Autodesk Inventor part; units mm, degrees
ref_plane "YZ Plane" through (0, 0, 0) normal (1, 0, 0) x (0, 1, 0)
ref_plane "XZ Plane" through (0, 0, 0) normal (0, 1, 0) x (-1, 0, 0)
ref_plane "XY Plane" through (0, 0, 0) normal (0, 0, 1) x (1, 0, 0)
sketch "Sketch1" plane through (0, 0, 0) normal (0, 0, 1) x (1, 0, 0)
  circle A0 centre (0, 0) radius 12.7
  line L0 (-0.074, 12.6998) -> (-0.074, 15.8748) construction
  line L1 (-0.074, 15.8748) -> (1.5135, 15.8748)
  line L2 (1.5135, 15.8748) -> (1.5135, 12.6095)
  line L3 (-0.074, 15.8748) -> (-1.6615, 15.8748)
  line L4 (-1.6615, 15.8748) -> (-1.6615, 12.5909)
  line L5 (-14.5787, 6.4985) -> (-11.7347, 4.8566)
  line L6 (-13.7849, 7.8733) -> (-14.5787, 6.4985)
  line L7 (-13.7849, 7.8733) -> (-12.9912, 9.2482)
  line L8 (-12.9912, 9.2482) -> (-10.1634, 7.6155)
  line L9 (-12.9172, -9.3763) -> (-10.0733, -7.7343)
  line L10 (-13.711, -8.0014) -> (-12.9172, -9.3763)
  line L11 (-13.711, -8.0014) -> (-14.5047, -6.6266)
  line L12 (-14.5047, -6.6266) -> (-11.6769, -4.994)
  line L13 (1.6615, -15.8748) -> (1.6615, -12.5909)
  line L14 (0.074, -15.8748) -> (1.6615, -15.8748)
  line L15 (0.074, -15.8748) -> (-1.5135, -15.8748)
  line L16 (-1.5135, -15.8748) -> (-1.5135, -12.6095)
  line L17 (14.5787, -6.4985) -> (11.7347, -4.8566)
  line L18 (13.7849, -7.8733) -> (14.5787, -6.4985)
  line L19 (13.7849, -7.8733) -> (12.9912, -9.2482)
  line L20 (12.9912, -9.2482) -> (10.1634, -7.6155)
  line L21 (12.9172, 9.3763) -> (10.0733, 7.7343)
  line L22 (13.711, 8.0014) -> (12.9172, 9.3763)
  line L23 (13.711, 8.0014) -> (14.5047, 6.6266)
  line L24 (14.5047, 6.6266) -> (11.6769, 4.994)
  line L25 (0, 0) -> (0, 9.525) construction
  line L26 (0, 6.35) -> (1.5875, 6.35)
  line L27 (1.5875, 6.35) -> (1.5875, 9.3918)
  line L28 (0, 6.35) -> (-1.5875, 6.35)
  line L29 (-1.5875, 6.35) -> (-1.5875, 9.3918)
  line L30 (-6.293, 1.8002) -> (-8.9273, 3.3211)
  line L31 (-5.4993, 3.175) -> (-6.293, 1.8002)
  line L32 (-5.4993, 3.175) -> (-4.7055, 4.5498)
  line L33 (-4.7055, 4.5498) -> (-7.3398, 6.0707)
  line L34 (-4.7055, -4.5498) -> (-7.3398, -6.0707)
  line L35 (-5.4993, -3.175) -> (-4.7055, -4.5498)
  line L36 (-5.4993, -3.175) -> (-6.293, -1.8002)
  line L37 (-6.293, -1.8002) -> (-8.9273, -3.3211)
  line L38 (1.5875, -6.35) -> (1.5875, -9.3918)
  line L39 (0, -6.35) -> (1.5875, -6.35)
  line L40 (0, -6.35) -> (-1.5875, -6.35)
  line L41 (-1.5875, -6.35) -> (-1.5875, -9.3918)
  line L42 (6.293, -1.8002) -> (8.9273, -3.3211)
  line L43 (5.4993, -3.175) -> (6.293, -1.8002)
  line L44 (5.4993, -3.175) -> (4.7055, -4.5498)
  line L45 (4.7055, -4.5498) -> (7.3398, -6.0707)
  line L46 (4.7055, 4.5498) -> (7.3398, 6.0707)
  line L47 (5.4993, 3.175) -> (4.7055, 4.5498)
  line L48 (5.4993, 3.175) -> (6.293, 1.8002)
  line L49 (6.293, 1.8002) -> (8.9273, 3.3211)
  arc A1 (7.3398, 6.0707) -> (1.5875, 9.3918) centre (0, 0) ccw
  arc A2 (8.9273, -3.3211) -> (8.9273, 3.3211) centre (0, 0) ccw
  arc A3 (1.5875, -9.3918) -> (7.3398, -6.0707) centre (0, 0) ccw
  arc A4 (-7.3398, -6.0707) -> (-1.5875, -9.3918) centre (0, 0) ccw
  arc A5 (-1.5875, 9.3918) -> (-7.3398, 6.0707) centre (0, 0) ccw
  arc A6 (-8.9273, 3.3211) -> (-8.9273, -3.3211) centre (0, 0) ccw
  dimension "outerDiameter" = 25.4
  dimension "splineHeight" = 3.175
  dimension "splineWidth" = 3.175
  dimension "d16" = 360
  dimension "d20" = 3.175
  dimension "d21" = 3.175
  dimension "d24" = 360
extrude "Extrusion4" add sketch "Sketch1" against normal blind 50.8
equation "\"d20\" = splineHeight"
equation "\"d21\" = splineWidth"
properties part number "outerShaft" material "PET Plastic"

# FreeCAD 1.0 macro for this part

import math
import FreeCAD as App
import Part
import Sketcher

V = App.Vector
Q = App.Units.Quantity

doc = App.newDocument("Part")
body = doc.addObject("PartDesign::Body", "Body")

sketch1 = doc.addObject("Sketcher::SketchObject", "Sketch")
body.addObject(sketch1)
sketch1.AttachmentSupport = (doc.XY_Plane, [""])
sketch1.MapMode = "FlatFace"
sketch1.addGeometry([
    Part.ArcOfCircle(Part.Circle(V(0, 0, 0), V(0, 0, 1), 12.7), math.radians(-22.483028), math.radians(23.155524)),
    Part.LineSegment(V(11.6769, 4.994, 0), V(14.5047, 6.6266, 0)),
    Part.LineSegment(V(14.5047, 6.6266, 0), V(13.711, 8.0014, 0)),
    Part.LineSegment(V(13.711, 8.0014, 0), V(12.9172, 9.3763, 0)),
    Part.LineSegment(V(12.9172, 9.3763, 0), V(10.0733, 7.7343, 0)),
    Part.ArcOfCircle(Part.Circle(V(0, 0, 0), V(0, 0, 1), 12.7), math.radians(37.517127), math.radians(83.155614)),
    Part.LineSegment(V(1.5135, 12.6095, 0), V(1.5135, 15.8748, 0)),
    Part.LineSegment(V(1.5135, 15.8748, 0), V(-1.6615, 15.8748, 0)),
    Part.LineSegment(V(-1.6615, 15.8748, 0), V(-1.6615, 12.5909, 0)),
    Part.ArcOfCircle(Part.Circle(V(0, 0, 0), V(0, 0, 1), 12.7), math.radians(97.517339), math.radians(143.155547)),
    Part.LineSegment(V(-10.1634, 7.6155, 0), V(-12.9912, 9.2482, 0)),
    Part.LineSegment(V(-12.9912, 9.2482, 0), V(-13.7849, 7.8733, 0)),
    Part.LineSegment(V(-13.7849, 7.8733, 0), V(-14.5787, 6.4985, 0)),
    Part.LineSegment(V(-14.5787, 6.4985, 0), V(-11.7347, 4.8566, 0)),
    Part.ArcOfCircle(Part.Circle(V(0, 0, 0), V(0, 0, 1), 12.7), math.radians(157.516972), math.radians(203.155524)),
    Part.LineSegment(V(-11.6769, -4.994, 0), V(-14.5047, -6.6266, 0)),
    Part.LineSegment(V(-14.5047, -6.6266, 0), V(-13.711, -8.0014, 0)),
    Part.LineSegment(V(-13.711, -8.0014, 0), V(-12.9172, -9.3763, 0)),
    Part.LineSegment(V(-12.9172, -9.3763, 0), V(-10.0733, -7.7343, 0)),
    Part.ArcOfCircle(Part.Circle(V(0, 0, 0), V(0, 0, 1), 12.7), math.radians(-142.482873), math.radians(-96.844386)),
    Part.LineSegment(V(-1.5135, -12.6095, 0), V(-1.5135, -15.8748, 0)),
    Part.LineSegment(V(-1.5135, -15.8748, 0), V(1.6615, -15.8748, 0)),
    Part.LineSegment(V(1.6615, -15.8748, 0), V(1.6615, -12.5909, 0)),
    Part.ArcOfCircle(Part.Circle(V(0, 0, 0), V(0, 0, 1), 12.7), math.radians(-82.482661), math.radians(-36.844453)),
    Part.LineSegment(V(10.1634, -7.6155, 0), V(12.9912, -9.2482, 0)),
    Part.LineSegment(V(12.9912, -9.2482, 0), V(13.7849, -7.8733, 0)),
    Part.LineSegment(V(13.7849, -7.8733, 0), V(14.5787, -6.4985, 0)),
    Part.LineSegment(V(14.5787, -6.4985, 0), V(11.7347, -4.8566, 0)),
    Part.LineSegment(V(-1.5875, 6.35, 0), V(1.5875, 6.35, 0)),
    Part.LineSegment(V(1.5875, 6.35, 0), V(1.5875, 9.3918, 0)),
    Part.ArcOfCircle(Part.Circle(V(0, 0, 0), V(0, 0, 1), 9.525023), math.radians(39.593925), math.radians(80.405955)),
    Part.LineSegment(V(7.3398, 6.0707, 0), V(4.7055, 4.5498, 0)),
    Part.LineSegment(V(4.7055, 4.5498, 0), V(5.4993, 3.175, 0)),
    Part.LineSegment(V(5.4993, 3.175, 0), V(6.293, 1.8002, 0)),
    Part.LineSegment(V(6.293, 1.8002, 0), V(8.9273, 3.3211, 0)),
    Part.ArcOfCircle(Part.Circle(V(0, 0, 0), V(0, 0, 1), 9.52504), math.radians(-20.406015), math.radians(20.406015)),
    Part.LineSegment(V(8.9273, -3.3211, 0), V(6.293, -1.8002, 0)),
    Part.LineSegment(V(6.293, -1.8002, 0), V(5.4993, -3.175, 0)),
    Part.LineSegment(V(5.4993, -3.175, 0), V(4.7055, -4.5498, 0)),
    Part.LineSegment(V(4.7055, -4.5498, 0), V(7.3398, -6.0707, 0)),
    Part.ArcOfCircle(Part.Circle(V(0, 0, 0), V(0, 0, 1), 9.525023), math.radians(-80.405955), math.radians(-39.593925)),
    Part.LineSegment(V(1.5875, -9.3918, 0), V(1.5875, -6.35, 0)),
    Part.LineSegment(V(1.5875, -6.35, 0), V(-1.5875, -6.35, 0)),
    Part.LineSegment(V(-1.5875, -6.35, 0), V(-1.5875, -9.3918, 0)),
    Part.ArcOfCircle(Part.Circle(V(0, 0, 0), V(0, 0, 1), 9.525023), math.radians(-140.406075), math.radians(-99.594045)),
    Part.LineSegment(V(-7.3398, -6.0707, 0), V(-4.7055, -4.5498, 0)),
    Part.LineSegment(V(-4.7055, -4.5498, 0), V(-5.4993, -3.175, 0)),
    Part.LineSegment(V(-5.4993, -3.175, 0), V(-6.293, -1.8002, 0)),
    Part.LineSegment(V(-6.293, -1.8002, 0), V(-8.9273, -3.3211, 0)),
    Part.ArcOfCircle(Part.Circle(V(0, 0, 0), V(0, 0, 1), 9.52504), math.radians(159.593985), math.radians(200.406015)),
    Part.LineSegment(V(-8.9273, 3.3211, 0), V(-6.293, 1.8002, 0)),
    Part.LineSegment(V(-6.293, 1.8002, 0), V(-5.4993, 3.175, 0)),
    Part.LineSegment(V(-5.4993, 3.175, 0), V(-4.7055, 4.5498, 0)),
    Part.LineSegment(V(-4.7055, 4.5498, 0), V(-7.3398, 6.0707, 0)),
    Part.ArcOfCircle(Part.Circle(V(0, 0, 0), V(0, 0, 1), 9.525023), math.radians(99.594045), math.radians(140.406075)),
    Part.LineSegment(V(-1.5875, 9.3918, 0), V(-1.5875, 6.35, 0)),
], False)
sketch1.addConstraint([
    Sketcher.Constraint("Coincident", 0, 2, 1, 1),
    Sketcher.Constraint("Coincident", 1, 2, 2, 1),
    Sketcher.Constraint("Coincident", 2, 2, 3, 1),
    Sketcher.Constraint("Coincident", 3, 2, 4, 1),
    Sketcher.Constraint("Coincident", 4, 2, 5, 1),
    Sketcher.Constraint("Coincident", 5, 2, 6, 1),
    Sketcher.Constraint("Coincident", 6, 2, 7, 1),
    Sketcher.Constraint("Coincident", 7, 2, 8, 1),
    Sketcher.Constraint("Coincident", 8, 2, 9, 1),
    Sketcher.Constraint("Coincident", 9, 2, 10, 1),
    Sketcher.Constraint("Coincident", 10, 2, 11, 1),
    Sketcher.Constraint("Coincident", 11, 2, 12, 1),
    Sketcher.Constraint("Coincident", 12, 2, 13, 1),
    Sketcher.Constraint("Coincident", 13, 2, 14, 1),
    Sketcher.Constraint("Coincident", 14, 2, 15, 1),
    Sketcher.Constraint("Coincident", 15, 2, 16, 1),
    Sketcher.Constraint("Coincident", 16, 2, 17, 1),
    Sketcher.Constraint("Coincident", 17, 2, 18, 1),
    Sketcher.Constraint("Coincident", 18, 2, 19, 1),
    Sketcher.Constraint("Coincident", 19, 2, 20, 1),
    Sketcher.Constraint("Coincident", 20, 2, 21, 1),
    Sketcher.Constraint("Coincident", 21, 2, 22, 1),
    Sketcher.Constraint("Coincident", 22, 2, 23, 1),
    Sketcher.Constraint("Coincident", 23, 2, 24, 1),
    Sketcher.Constraint("Coincident", 24, 2, 25, 1),
    Sketcher.Constraint("Coincident", 25, 2, 26, 1),
    Sketcher.Constraint("Coincident", 26, 2, 27, 1),
    Sketcher.Constraint("Coincident", 27, 2, 0, 1),
    Sketcher.Constraint("Coincident", 28, 2, 29, 1),
    Sketcher.Constraint("Coincident", 29, 2, 30, 2),
    Sketcher.Constraint("Coincident", 30, 1, 31, 1),
    Sketcher.Constraint("Coincident", 31, 2, 32, 1),
    Sketcher.Constraint("Coincident", 32, 2, 33, 1),
    Sketcher.Constraint("Coincident", 33, 2, 34, 1),
    Sketcher.Constraint("Coincident", 34, 2, 35, 2),
    Sketcher.Constraint("Coincident", 35, 1, 36, 1),
    Sketcher.Constraint("Coincident", 36, 2, 37, 1),
    Sketcher.Constraint("Coincident", 37, 2, 38, 1),
    Sketcher.Constraint("Coincident", 38, 2, 39, 1),
    Sketcher.Constraint("Coincident", 39, 2, 40, 2),
    Sketcher.Constraint("Coincident", 40, 1, 41, 1),
    Sketcher.Constraint("Coincident", 41, 2, 42, 1),
    Sketcher.Constraint("Coincident", 42, 2, 43, 1),
    Sketcher.Constraint("Coincident", 43, 2, 44, 2),
    Sketcher.Constraint("Coincident", 44, 1, 45, 1),
    Sketcher.Constraint("Coincident", 45, 2, 46, 1),
    Sketcher.Constraint("Coincident", 46, 2, 47, 1),
    Sketcher.Constraint("Coincident", 47, 2, 48, 1),
    Sketcher.Constraint("Coincident", 48, 2, 49, 2),
    Sketcher.Constraint("Coincident", 49, 1, 50, 1),
    Sketcher.Constraint("Coincident", 50, 2, 51, 1),
    Sketcher.Constraint("Coincident", 51, 2, 52, 1),
    Sketcher.Constraint("Coincident", 52, 2, 53, 1),
    Sketcher.Constraint("Coincident", 53, 2, 54, 2),
    Sketcher.Constraint("Coincident", 54, 1, 55, 1),
    Sketcher.Constraint("Coincident", 55, 2, 28, 1),
    Sketcher.Constraint("Vertical", 6),
    Sketcher.Constraint("Horizontal", 7),
    Sketcher.Constraint("Vertical", 8),
    Sketcher.Constraint("Vertical", 20),
    Sketcher.Constraint("Horizontal", 21),
    Sketcher.Constraint("Vertical", 22),
    Sketcher.Constraint("Horizontal", 28),
    Sketcher.Constraint("Vertical", 29),
    Sketcher.Constraint("Vertical", 41),
    Sketcher.Constraint("Horizontal", 42),
    Sketcher.Constraint("Vertical", 43),
    Sketcher.Constraint("Vertical", 55),
    Sketcher.Constraint("Coincident", 0, 3, -1, 1),
    Sketcher.Constraint("Coincident", 5, 3, -1, 1),
    Sketcher.Constraint("Coincident", 9, 3, -1, 1),
    Sketcher.Constraint("Coincident", 14, 3, -1, 1),
    Sketcher.Constraint("Coincident", 19, 3, -1, 1),
    Sketcher.Constraint("Coincident", 23, 3, -1, 1),
    Sketcher.Constraint("Coincident", 30, 3, -1, 1),
    Sketcher.Constraint("Coincident", 35, 3, -1, 1),
    Sketcher.Constraint("Coincident", 40, 3, -1, 1),
    Sketcher.Constraint("Coincident", 44, 3, -1, 1),
    Sketcher.Constraint("Coincident", 49, 3, -1, 1),
    Sketcher.Constraint("Coincident", 54, 3, -1, 1),
    Sketcher.Constraint("Equal", 0, 5),
    Sketcher.Constraint("Equal", 5, 9),
    Sketcher.Constraint("Equal", 9, 14),
    Sketcher.Constraint("Equal", 14, 19),
    Sketcher.Constraint("Equal", 19, 23),
    Sketcher.Constraint("Equal", 30, 35),
    Sketcher.Constraint("Equal", 35, 40),
    Sketcher.Constraint("Equal", 40, 44),
    Sketcher.Constraint("Equal", 44, 49),
    Sketcher.Constraint("Equal", 49, 54),
    Sketcher.Constraint("Symmetric", 1, 2, 15, 2, -1, 1),
    Sketcher.Constraint("Symmetric", 2, 2, 16, 2, -1, 1),
    Sketcher.Constraint("Symmetric", 3, 2, 17, 2, -1, 1),
    Sketcher.Constraint("Symmetric", 6, 2, 20, 2, -1, 1),
    Sketcher.Constraint("Symmetric", 10, 2, 24, 2, -1, 1),
    Sketcher.Constraint("Symmetric", 11, 2, 25, 2, -1, 1),
    Sketcher.Constraint("Symmetric", 12, 2, 26, 2, -1, 1),
    Sketcher.Constraint("Symmetric", 28, 2, 42, 2, -1, 1),
    Sketcher.Constraint("Symmetric", 31, 2, 45, 2, -1, 1),
    Sketcher.Constraint("Symmetric", 32, 2, 46, 2, -1, 1),
    Sketcher.Constraint("Symmetric", 33, 2, 47, 2, -1, 1),
    Sketcher.Constraint("Symmetric", 36, 2, 50, 2, -1, 1),
    Sketcher.Constraint("Symmetric", 37, 2, 51, 2, -1, 1),
    Sketcher.Constraint("Symmetric", 38, 2, 52, 2, -1, 1),
    Sketcher.Constraint("Symmetric", 38, 2, 45, 2, -2),
    Sketcher.Constraint("Symmetric", 37, 2, 46, 2, -2),
    Sketcher.Constraint("Symmetric", 36, 2, 47, 2, -2),
    Sketcher.Constraint("Perpendicular", 1, 2),
    Sketcher.Constraint("Parallel", 2, 3),
    Sketcher.Constraint("Perpendicular", 3, 4),
    Sketcher.Constraint("Perpendicular", 10, 11),
    Sketcher.Constraint("Parallel", 11, 12),
    Sketcher.Constraint("Perpendicular", 12, 13),
    Sketcher.Constraint("Parallel", 4, 15),
    Sketcher.Constraint("Perpendicular", 17, 18),
    Sketcher.Constraint("Parallel", 13, 24),
    Sketcher.Constraint("Perpendicular", 26, 27),
    Sketcher.Constraint("Parallel", 18, 31),
    Sketcher.Constraint("Perpendicular", 31, 32),
    Sketcher.Constraint("Parallel", 32, 33),
    Sketcher.Constraint("Perpendicular", 33, 34),
    Sketcher.Constraint("Parallel", 27, 36),
    Sketcher.Constraint("Perpendicular", 36, 37),
    Sketcher.Constraint("Perpendicular", 38, 39),
    Sketcher.Constraint("Parallel", 34, 45),
    Sketcher.Constraint("Perpendicular", 47, 48),
    Sketcher.Constraint("Parallel", 39, 50),
    Sketcher.Constraint("Perpendicular", 52, 53),
    Sketcher.Constraint("Horizontal", 40, 1, 43, 2),
    Sketcher.Constraint("Horizontal", 29, 2, 54, 1),
    Sketcher.Constraint("Equal", 7, 21),
    Sketcher.Constraint("Equal", 21, 28),
    Sketcher.Constraint("Equal", 2, 3),
    Sketcher.Constraint("Equal", 1, 10),
    Sketcher.Constraint("Equal", 3, 11),
    Sketcher.Constraint("Equal", 11, 12),
    Sketcher.Constraint("Equal", 4, 13),
    Sketcher.Constraint("Equal", 26, 32),
    Sketcher.Constraint("Equal", 32, 33),
    Sketcher.Constraint("Equal", 31, 34),
    Sketcher.Constraint("Radius", 0, Q("0.5 in")),
    Sketcher.Constraint("DistanceX", 7, 2, 7, 1, Q("0.125 in")),
    Sketcher.Constraint("DistanceY", -1, 1, 32, 2, Q("0.125 in")),
    Sketcher.Constraint("Angle", 1, Q("29.9995 deg")),
    Sketcher.Constraint("Radius", 30, Q("0.375 in")),
    Sketcher.Constraint("DistanceY", -1, 1, 28, 2, Q("0.25 in")),
    Sketcher.Constraint("Distance", 2, Q("0.0625 in")),
    Sketcher.Constraint("DistanceY", -1, 1, 6, 2, Q("0.625 in")),
    Sketcher.Constraint("DistanceX", 13, 2, -1, 1, Q("0.462 in")),
    Sketcher.Constraint("Distance", 13, Q("0.1293 in")),
    Sketcher.Constraint("DistanceY", 6, 1, 6, 2, 3.2653),
])
pad1 = doc.addObject("PartDesign::Pad", "Pad")
body.addObject(pad1)
pad1.Profile = sketch1
pad1.Length = Q("2 in")
pad1.Reversed = True

doc.recompute()
